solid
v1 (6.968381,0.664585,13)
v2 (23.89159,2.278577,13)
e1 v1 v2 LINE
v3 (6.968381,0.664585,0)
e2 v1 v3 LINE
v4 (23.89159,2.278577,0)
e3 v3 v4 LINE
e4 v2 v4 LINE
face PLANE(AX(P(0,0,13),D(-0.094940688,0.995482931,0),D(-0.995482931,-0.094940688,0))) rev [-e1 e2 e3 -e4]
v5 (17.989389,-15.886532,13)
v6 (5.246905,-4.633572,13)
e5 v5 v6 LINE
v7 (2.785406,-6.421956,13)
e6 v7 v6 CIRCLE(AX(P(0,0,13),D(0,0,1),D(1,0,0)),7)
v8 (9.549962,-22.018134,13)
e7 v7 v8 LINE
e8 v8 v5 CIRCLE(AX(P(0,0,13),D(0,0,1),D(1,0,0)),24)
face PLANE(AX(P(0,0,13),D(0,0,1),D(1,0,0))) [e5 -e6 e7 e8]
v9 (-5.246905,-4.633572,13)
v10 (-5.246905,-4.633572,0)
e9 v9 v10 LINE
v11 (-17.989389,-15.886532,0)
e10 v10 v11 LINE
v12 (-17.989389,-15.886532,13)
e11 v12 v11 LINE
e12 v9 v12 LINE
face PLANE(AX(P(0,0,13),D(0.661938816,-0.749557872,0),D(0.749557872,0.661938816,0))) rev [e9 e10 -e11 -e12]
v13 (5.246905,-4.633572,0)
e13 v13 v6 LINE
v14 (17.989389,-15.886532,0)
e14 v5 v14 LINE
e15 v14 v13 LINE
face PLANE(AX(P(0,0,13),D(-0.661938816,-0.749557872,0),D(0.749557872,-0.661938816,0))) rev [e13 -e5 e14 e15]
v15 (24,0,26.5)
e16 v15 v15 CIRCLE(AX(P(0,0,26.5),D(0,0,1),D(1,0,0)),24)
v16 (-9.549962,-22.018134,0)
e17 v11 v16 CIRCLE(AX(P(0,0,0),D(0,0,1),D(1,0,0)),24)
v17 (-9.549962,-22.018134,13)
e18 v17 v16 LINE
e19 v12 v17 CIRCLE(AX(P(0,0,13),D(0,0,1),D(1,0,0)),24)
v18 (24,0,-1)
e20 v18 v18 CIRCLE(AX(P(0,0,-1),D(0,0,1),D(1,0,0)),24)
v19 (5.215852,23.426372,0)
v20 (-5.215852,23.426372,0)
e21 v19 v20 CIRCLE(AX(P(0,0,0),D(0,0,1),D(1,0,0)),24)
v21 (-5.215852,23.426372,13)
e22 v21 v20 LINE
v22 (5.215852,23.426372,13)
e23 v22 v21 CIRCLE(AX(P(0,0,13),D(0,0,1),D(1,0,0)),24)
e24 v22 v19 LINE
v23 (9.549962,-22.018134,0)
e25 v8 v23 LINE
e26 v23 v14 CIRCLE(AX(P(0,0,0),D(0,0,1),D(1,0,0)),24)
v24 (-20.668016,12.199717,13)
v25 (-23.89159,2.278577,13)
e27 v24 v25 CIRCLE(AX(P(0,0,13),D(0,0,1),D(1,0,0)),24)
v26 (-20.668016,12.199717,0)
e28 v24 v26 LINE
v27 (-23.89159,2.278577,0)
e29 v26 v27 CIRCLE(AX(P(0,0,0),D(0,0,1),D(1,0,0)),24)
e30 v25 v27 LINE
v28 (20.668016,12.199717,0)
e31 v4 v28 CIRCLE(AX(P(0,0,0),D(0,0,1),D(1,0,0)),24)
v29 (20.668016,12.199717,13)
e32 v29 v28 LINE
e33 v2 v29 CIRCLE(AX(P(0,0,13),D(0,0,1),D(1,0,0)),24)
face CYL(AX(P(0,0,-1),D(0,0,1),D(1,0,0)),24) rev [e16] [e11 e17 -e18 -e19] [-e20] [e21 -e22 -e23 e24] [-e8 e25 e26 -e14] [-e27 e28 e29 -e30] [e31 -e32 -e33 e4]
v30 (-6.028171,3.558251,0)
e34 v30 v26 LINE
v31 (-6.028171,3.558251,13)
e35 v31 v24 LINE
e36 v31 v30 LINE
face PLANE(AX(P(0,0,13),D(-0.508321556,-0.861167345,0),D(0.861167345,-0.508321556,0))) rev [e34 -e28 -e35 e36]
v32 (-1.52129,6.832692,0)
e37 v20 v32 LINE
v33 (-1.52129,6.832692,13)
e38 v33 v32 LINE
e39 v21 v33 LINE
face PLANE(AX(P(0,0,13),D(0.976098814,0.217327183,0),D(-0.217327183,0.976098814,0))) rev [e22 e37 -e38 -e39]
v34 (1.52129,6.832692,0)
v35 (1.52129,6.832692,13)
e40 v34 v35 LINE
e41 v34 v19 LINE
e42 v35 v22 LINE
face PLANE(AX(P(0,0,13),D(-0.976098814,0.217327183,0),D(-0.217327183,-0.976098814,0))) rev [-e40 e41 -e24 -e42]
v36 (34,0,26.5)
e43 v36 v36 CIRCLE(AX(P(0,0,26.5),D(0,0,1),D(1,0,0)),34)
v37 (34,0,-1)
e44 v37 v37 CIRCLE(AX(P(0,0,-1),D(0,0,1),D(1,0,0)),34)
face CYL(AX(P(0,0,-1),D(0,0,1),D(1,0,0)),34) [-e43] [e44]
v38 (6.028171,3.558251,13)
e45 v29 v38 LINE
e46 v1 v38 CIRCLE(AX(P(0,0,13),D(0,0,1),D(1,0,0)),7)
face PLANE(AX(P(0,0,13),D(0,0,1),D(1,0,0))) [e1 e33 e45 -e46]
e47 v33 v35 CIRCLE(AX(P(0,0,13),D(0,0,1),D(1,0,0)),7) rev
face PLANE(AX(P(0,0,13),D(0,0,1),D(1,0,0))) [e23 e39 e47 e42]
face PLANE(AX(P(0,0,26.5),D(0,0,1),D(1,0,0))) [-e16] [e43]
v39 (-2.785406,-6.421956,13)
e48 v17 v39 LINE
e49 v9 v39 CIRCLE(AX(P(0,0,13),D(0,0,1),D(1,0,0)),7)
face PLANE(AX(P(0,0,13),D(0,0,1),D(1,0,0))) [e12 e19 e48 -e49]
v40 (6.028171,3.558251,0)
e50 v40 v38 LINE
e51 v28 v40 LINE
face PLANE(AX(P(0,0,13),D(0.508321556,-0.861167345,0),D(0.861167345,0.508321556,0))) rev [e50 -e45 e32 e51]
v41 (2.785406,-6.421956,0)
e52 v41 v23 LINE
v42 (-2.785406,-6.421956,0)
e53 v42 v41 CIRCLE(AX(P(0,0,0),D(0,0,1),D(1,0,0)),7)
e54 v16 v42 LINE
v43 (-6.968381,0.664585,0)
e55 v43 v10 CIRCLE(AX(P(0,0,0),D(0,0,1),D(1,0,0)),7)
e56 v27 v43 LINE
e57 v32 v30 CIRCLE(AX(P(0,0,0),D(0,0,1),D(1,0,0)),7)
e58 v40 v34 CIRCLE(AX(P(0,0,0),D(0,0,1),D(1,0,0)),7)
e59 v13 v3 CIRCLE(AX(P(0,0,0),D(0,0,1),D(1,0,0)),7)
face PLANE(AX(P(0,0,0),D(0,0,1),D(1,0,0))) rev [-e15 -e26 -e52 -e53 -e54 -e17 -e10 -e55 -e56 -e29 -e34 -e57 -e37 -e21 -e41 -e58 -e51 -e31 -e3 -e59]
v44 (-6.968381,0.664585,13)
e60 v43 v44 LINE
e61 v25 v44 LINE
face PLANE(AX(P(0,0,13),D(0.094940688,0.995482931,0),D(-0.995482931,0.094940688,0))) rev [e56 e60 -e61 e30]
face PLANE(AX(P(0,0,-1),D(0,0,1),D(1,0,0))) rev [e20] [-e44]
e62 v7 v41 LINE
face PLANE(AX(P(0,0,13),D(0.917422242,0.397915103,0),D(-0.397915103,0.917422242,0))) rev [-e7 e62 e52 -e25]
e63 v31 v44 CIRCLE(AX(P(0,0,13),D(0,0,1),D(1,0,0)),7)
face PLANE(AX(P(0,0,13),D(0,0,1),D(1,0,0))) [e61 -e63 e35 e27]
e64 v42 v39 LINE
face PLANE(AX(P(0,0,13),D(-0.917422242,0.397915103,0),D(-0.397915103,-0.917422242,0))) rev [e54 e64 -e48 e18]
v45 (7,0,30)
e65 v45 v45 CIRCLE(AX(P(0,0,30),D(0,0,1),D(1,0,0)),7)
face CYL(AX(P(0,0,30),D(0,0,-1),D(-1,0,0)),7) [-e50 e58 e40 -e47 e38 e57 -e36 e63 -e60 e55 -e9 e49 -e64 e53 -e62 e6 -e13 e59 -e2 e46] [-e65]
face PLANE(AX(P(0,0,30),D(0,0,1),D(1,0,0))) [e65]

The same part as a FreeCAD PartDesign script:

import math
import FreeCAD as App
import Part
import Sketcher
from FreeCAD import Vector

doc = App.newDocument("Part")
body = doc.addObject("PartDesign::Body", "Body")

# Sketch on XY plane
sketch1 = body.newObject("Sketcher::SketchObject", "Sketch")
sketch1.AttachmentSupport = (doc.getObject("XY_Plane"), [""])
sketch1.MapMode = "FlatFace"
sketch1.addGeometry([
    Part.Circle(Vector(0, 0, 0), Vector(0, 0, 1), 34),
    Part.Circle(Vector(0, 0, 0), Vector(0, 0, 1), 24),
], False)
sketch1.addConstraint([
    Sketcher.Constraint("Coincident", 0, 3, -1, 1),
    Sketcher.Constraint("Coincident", 1, 3, -1, 1),
    Sketcher.Constraint("Diameter", 0, 68.0),
    Sketcher.Constraint("Diameter", 1, 48.0),
])
pad1 = body.newObject("PartDesign::Pad", "Pad")
pad1.Profile = sketch1
pad1.Type = "TwoLengths"
pad1.Length = 26.5
pad1.Length2 = 1
body2 = doc.addObject("PartDesign::Body", "Body001")

# Sketch on XY plane
sketch2 = body2.newObject("Sketcher::SketchObject", "Sketch001")
sketch2.AttachmentSupport = (doc.getObject("XY_Plane001"), [""])
sketch2.MapMode = "FlatFace"
sketch2.addGeometry(Part.Circle(Vector(0, 0, 0), Vector(0, 0, 1), 7), False)
sketch2.addConstraint([
    Sketcher.Constraint("Coincident", 0, 3, -1, 1),
    Sketcher.Constraint("Diameter", 0, 14.0),
])
pad2 = body2.newObject("PartDesign::Pad", "Pad001")
pad2.Profile = sketch2
pad2.Length = 30
body.AllowCompound = True
doc.recompute()

boolean = body.newObject("PartDesign::Boolean", "Boolean")
boolean.Type = "Fuse"
boolean.addObjects([body2])

# Sketch on XY plane
sketch3 = body.newObject("Sketcher::SketchObject", "Sketch002")
sketch3.AttachmentSupport = (doc.getObject("XY_Plane"), [""])
sketch3.MapMode = "FlatFace"
sketch3.addGeometry([
    Part.ArcOfCircle(Part.Circle(Vector(0, 0, 0), Vector(0, 0, 1), 24), math.radians(77.447906), math.radians(102.552094)),  # 0
    Part.LineSegment(Vector(-5.215852, 23.426372, 0), Vector(0, 0, 0)),  # 1
    Part.LineSegment(Vector(0, 0, 0), Vector(5.215852, 23.426372, 0)),  # 2
    Part.LineSegment(Vector(-23.89159, 2.278577, 0), Vector(0, 0, 0)),  # 3
    Part.LineSegment(Vector(0, 0, 0), Vector(-20.668016, 12.199717, 0)),  # 4
    Part.ArcOfCircle(Part.Circle(Vector(0, 0, 0), Vector(0, 0, 1), 24), math.radians(149.447906), math.radians(174.552094)),  # 5
    Part.LineSegment(Vector(20.668016, 12.199717, 0), Vector(0, 0, 0)),  # 6
    Part.LineSegment(Vector(0, 0, 0), Vector(23.89159, 2.278577, 0)),  # 7
    Part.ArcOfCircle(Part.Circle(Vector(0, 0, 0), Vector(0, 0, 1), 24), math.radians(5.447906), math.radians(30.552094)),  # 8
    Part.LineSegment(Vector(17.989389, -15.886532, 0), Vector(0, 0, 0)),  # 9
    Part.LineSegment(Vector(0, 0, 0), Vector(9.549962, -22.018134, 0)),  # 10
    Part.ArcOfCircle(Part.Circle(Vector(0, 0, 0), Vector(0, 0, 1), 24), math.radians(-66.552094), math.radians(-41.447906)),  # 11
    Part.LineSegment(Vector(-9.549962, -22.018134, 0), Vector(0, 0, 0)),  # 12
    Part.LineSegment(Vector(0, 0, 0), Vector(-17.989389, -15.886532, 0)),  # 13
    Part.ArcOfCircle(Part.Circle(Vector(0, 0, 0), Vector(0, 0, 1), 24), math.radians(-138.552094), math.radians(-113.447906)),  # 14
], False)
sketch3.addConstraint([
    Sketcher.Constraint("Coincident", 0, 2, 1, 1),
    Sketcher.Constraint("Coincident", 1, 2, 2, 1),
    Sketcher.Constraint("Coincident", 2, 2, 0, 1),
    Sketcher.Constraint("Coincident", 3, 2, 4, 1),
    Sketcher.Constraint("Coincident", 4, 2, 5, 1),
    Sketcher.Constraint("Coincident", 5, 2, 3, 1),
    Sketcher.Constraint("Coincident", 6, 2, 7, 1),
    Sketcher.Constraint("Coincident", 7, 2, 8, 1),
    Sketcher.Constraint("Coincident", 8, 2, 6, 1),
    Sketcher.Constraint("Coincident", 9, 2, 10, 1),
    Sketcher.Constraint("Coincident", 10, 2, 11, 1),
    Sketcher.Constraint("Coincident", 11, 2, 9, 1),
    Sketcher.Constraint("Coincident", 12, 2, 13, 1),
    Sketcher.Constraint("Coincident", 13, 2, 14, 1),
    Sketcher.Constraint("Coincident", 14, 2, 12, 1),
    Sketcher.Constraint("Coincident", 0, 3, -1, 1),
    Sketcher.Constraint("Coincident", 5, 3, -1, 1),
    Sketcher.Constraint("Coincident", 8, 3, -1, 1),
    Sketcher.Constraint("Coincident", 11, 3, -1, 1),
    Sketcher.Constraint("Coincident", 14, 3, -1, 1),
    Sketcher.Constraint("Coincident", 1, 2, -1, 1),
    Sketcher.Constraint("Coincident", 3, 2, -1, 1),
    Sketcher.Constraint("Coincident", 6, 2, -1, 1),
    Sketcher.Constraint("Coincident", 9, 2, -1, 1),
    Sketcher.Constraint("Coincident", 12, 2, -1, 1),
    Sketcher.Constraint("Equal", 0, 5),
    Sketcher.Constraint("Equal", 5, 8),
    Sketcher.Constraint("Equal", 8, 11),
    Sketcher.Constraint("Equal", 11, 14),
    Sketcher.Constraint("Horizontal", 0, 2, 2, 2),
    Sketcher.Constraint("Horizontal", 5, 2, 7, 2),
    Sketcher.Constraint("Horizontal", 4, 2, 8, 2),
    Sketcher.Constraint("Horizontal", 11, 2, 13, 2),
    Sketcher.Constraint("Horizontal", 10, 2, 14, 2),
    Sketcher.Constraint("Radius", 0, 24.0),
    Sketcher.Constraint("DistanceX", 11, 2, 7, 2, 5.902201),
    Sketcher.Constraint("DistanceY", -1, 1, 0, 2, 23.426372),
    Sketcher.Constraint("DistanceX", 5, 2, -1, 1, 23.89159),
    Sketcher.Constraint("DistanceY", 5, 2, 4, 2, 9.921141),
    Sketcher.Constraint("DistanceX", -1, 1, 10, 2, 9.549962),
])
pad3 = body.newObject("PartDesign::Pad", "Pad002")
pad3.Profile = sketch3
pad3.Length = 13

doc.recompute()
